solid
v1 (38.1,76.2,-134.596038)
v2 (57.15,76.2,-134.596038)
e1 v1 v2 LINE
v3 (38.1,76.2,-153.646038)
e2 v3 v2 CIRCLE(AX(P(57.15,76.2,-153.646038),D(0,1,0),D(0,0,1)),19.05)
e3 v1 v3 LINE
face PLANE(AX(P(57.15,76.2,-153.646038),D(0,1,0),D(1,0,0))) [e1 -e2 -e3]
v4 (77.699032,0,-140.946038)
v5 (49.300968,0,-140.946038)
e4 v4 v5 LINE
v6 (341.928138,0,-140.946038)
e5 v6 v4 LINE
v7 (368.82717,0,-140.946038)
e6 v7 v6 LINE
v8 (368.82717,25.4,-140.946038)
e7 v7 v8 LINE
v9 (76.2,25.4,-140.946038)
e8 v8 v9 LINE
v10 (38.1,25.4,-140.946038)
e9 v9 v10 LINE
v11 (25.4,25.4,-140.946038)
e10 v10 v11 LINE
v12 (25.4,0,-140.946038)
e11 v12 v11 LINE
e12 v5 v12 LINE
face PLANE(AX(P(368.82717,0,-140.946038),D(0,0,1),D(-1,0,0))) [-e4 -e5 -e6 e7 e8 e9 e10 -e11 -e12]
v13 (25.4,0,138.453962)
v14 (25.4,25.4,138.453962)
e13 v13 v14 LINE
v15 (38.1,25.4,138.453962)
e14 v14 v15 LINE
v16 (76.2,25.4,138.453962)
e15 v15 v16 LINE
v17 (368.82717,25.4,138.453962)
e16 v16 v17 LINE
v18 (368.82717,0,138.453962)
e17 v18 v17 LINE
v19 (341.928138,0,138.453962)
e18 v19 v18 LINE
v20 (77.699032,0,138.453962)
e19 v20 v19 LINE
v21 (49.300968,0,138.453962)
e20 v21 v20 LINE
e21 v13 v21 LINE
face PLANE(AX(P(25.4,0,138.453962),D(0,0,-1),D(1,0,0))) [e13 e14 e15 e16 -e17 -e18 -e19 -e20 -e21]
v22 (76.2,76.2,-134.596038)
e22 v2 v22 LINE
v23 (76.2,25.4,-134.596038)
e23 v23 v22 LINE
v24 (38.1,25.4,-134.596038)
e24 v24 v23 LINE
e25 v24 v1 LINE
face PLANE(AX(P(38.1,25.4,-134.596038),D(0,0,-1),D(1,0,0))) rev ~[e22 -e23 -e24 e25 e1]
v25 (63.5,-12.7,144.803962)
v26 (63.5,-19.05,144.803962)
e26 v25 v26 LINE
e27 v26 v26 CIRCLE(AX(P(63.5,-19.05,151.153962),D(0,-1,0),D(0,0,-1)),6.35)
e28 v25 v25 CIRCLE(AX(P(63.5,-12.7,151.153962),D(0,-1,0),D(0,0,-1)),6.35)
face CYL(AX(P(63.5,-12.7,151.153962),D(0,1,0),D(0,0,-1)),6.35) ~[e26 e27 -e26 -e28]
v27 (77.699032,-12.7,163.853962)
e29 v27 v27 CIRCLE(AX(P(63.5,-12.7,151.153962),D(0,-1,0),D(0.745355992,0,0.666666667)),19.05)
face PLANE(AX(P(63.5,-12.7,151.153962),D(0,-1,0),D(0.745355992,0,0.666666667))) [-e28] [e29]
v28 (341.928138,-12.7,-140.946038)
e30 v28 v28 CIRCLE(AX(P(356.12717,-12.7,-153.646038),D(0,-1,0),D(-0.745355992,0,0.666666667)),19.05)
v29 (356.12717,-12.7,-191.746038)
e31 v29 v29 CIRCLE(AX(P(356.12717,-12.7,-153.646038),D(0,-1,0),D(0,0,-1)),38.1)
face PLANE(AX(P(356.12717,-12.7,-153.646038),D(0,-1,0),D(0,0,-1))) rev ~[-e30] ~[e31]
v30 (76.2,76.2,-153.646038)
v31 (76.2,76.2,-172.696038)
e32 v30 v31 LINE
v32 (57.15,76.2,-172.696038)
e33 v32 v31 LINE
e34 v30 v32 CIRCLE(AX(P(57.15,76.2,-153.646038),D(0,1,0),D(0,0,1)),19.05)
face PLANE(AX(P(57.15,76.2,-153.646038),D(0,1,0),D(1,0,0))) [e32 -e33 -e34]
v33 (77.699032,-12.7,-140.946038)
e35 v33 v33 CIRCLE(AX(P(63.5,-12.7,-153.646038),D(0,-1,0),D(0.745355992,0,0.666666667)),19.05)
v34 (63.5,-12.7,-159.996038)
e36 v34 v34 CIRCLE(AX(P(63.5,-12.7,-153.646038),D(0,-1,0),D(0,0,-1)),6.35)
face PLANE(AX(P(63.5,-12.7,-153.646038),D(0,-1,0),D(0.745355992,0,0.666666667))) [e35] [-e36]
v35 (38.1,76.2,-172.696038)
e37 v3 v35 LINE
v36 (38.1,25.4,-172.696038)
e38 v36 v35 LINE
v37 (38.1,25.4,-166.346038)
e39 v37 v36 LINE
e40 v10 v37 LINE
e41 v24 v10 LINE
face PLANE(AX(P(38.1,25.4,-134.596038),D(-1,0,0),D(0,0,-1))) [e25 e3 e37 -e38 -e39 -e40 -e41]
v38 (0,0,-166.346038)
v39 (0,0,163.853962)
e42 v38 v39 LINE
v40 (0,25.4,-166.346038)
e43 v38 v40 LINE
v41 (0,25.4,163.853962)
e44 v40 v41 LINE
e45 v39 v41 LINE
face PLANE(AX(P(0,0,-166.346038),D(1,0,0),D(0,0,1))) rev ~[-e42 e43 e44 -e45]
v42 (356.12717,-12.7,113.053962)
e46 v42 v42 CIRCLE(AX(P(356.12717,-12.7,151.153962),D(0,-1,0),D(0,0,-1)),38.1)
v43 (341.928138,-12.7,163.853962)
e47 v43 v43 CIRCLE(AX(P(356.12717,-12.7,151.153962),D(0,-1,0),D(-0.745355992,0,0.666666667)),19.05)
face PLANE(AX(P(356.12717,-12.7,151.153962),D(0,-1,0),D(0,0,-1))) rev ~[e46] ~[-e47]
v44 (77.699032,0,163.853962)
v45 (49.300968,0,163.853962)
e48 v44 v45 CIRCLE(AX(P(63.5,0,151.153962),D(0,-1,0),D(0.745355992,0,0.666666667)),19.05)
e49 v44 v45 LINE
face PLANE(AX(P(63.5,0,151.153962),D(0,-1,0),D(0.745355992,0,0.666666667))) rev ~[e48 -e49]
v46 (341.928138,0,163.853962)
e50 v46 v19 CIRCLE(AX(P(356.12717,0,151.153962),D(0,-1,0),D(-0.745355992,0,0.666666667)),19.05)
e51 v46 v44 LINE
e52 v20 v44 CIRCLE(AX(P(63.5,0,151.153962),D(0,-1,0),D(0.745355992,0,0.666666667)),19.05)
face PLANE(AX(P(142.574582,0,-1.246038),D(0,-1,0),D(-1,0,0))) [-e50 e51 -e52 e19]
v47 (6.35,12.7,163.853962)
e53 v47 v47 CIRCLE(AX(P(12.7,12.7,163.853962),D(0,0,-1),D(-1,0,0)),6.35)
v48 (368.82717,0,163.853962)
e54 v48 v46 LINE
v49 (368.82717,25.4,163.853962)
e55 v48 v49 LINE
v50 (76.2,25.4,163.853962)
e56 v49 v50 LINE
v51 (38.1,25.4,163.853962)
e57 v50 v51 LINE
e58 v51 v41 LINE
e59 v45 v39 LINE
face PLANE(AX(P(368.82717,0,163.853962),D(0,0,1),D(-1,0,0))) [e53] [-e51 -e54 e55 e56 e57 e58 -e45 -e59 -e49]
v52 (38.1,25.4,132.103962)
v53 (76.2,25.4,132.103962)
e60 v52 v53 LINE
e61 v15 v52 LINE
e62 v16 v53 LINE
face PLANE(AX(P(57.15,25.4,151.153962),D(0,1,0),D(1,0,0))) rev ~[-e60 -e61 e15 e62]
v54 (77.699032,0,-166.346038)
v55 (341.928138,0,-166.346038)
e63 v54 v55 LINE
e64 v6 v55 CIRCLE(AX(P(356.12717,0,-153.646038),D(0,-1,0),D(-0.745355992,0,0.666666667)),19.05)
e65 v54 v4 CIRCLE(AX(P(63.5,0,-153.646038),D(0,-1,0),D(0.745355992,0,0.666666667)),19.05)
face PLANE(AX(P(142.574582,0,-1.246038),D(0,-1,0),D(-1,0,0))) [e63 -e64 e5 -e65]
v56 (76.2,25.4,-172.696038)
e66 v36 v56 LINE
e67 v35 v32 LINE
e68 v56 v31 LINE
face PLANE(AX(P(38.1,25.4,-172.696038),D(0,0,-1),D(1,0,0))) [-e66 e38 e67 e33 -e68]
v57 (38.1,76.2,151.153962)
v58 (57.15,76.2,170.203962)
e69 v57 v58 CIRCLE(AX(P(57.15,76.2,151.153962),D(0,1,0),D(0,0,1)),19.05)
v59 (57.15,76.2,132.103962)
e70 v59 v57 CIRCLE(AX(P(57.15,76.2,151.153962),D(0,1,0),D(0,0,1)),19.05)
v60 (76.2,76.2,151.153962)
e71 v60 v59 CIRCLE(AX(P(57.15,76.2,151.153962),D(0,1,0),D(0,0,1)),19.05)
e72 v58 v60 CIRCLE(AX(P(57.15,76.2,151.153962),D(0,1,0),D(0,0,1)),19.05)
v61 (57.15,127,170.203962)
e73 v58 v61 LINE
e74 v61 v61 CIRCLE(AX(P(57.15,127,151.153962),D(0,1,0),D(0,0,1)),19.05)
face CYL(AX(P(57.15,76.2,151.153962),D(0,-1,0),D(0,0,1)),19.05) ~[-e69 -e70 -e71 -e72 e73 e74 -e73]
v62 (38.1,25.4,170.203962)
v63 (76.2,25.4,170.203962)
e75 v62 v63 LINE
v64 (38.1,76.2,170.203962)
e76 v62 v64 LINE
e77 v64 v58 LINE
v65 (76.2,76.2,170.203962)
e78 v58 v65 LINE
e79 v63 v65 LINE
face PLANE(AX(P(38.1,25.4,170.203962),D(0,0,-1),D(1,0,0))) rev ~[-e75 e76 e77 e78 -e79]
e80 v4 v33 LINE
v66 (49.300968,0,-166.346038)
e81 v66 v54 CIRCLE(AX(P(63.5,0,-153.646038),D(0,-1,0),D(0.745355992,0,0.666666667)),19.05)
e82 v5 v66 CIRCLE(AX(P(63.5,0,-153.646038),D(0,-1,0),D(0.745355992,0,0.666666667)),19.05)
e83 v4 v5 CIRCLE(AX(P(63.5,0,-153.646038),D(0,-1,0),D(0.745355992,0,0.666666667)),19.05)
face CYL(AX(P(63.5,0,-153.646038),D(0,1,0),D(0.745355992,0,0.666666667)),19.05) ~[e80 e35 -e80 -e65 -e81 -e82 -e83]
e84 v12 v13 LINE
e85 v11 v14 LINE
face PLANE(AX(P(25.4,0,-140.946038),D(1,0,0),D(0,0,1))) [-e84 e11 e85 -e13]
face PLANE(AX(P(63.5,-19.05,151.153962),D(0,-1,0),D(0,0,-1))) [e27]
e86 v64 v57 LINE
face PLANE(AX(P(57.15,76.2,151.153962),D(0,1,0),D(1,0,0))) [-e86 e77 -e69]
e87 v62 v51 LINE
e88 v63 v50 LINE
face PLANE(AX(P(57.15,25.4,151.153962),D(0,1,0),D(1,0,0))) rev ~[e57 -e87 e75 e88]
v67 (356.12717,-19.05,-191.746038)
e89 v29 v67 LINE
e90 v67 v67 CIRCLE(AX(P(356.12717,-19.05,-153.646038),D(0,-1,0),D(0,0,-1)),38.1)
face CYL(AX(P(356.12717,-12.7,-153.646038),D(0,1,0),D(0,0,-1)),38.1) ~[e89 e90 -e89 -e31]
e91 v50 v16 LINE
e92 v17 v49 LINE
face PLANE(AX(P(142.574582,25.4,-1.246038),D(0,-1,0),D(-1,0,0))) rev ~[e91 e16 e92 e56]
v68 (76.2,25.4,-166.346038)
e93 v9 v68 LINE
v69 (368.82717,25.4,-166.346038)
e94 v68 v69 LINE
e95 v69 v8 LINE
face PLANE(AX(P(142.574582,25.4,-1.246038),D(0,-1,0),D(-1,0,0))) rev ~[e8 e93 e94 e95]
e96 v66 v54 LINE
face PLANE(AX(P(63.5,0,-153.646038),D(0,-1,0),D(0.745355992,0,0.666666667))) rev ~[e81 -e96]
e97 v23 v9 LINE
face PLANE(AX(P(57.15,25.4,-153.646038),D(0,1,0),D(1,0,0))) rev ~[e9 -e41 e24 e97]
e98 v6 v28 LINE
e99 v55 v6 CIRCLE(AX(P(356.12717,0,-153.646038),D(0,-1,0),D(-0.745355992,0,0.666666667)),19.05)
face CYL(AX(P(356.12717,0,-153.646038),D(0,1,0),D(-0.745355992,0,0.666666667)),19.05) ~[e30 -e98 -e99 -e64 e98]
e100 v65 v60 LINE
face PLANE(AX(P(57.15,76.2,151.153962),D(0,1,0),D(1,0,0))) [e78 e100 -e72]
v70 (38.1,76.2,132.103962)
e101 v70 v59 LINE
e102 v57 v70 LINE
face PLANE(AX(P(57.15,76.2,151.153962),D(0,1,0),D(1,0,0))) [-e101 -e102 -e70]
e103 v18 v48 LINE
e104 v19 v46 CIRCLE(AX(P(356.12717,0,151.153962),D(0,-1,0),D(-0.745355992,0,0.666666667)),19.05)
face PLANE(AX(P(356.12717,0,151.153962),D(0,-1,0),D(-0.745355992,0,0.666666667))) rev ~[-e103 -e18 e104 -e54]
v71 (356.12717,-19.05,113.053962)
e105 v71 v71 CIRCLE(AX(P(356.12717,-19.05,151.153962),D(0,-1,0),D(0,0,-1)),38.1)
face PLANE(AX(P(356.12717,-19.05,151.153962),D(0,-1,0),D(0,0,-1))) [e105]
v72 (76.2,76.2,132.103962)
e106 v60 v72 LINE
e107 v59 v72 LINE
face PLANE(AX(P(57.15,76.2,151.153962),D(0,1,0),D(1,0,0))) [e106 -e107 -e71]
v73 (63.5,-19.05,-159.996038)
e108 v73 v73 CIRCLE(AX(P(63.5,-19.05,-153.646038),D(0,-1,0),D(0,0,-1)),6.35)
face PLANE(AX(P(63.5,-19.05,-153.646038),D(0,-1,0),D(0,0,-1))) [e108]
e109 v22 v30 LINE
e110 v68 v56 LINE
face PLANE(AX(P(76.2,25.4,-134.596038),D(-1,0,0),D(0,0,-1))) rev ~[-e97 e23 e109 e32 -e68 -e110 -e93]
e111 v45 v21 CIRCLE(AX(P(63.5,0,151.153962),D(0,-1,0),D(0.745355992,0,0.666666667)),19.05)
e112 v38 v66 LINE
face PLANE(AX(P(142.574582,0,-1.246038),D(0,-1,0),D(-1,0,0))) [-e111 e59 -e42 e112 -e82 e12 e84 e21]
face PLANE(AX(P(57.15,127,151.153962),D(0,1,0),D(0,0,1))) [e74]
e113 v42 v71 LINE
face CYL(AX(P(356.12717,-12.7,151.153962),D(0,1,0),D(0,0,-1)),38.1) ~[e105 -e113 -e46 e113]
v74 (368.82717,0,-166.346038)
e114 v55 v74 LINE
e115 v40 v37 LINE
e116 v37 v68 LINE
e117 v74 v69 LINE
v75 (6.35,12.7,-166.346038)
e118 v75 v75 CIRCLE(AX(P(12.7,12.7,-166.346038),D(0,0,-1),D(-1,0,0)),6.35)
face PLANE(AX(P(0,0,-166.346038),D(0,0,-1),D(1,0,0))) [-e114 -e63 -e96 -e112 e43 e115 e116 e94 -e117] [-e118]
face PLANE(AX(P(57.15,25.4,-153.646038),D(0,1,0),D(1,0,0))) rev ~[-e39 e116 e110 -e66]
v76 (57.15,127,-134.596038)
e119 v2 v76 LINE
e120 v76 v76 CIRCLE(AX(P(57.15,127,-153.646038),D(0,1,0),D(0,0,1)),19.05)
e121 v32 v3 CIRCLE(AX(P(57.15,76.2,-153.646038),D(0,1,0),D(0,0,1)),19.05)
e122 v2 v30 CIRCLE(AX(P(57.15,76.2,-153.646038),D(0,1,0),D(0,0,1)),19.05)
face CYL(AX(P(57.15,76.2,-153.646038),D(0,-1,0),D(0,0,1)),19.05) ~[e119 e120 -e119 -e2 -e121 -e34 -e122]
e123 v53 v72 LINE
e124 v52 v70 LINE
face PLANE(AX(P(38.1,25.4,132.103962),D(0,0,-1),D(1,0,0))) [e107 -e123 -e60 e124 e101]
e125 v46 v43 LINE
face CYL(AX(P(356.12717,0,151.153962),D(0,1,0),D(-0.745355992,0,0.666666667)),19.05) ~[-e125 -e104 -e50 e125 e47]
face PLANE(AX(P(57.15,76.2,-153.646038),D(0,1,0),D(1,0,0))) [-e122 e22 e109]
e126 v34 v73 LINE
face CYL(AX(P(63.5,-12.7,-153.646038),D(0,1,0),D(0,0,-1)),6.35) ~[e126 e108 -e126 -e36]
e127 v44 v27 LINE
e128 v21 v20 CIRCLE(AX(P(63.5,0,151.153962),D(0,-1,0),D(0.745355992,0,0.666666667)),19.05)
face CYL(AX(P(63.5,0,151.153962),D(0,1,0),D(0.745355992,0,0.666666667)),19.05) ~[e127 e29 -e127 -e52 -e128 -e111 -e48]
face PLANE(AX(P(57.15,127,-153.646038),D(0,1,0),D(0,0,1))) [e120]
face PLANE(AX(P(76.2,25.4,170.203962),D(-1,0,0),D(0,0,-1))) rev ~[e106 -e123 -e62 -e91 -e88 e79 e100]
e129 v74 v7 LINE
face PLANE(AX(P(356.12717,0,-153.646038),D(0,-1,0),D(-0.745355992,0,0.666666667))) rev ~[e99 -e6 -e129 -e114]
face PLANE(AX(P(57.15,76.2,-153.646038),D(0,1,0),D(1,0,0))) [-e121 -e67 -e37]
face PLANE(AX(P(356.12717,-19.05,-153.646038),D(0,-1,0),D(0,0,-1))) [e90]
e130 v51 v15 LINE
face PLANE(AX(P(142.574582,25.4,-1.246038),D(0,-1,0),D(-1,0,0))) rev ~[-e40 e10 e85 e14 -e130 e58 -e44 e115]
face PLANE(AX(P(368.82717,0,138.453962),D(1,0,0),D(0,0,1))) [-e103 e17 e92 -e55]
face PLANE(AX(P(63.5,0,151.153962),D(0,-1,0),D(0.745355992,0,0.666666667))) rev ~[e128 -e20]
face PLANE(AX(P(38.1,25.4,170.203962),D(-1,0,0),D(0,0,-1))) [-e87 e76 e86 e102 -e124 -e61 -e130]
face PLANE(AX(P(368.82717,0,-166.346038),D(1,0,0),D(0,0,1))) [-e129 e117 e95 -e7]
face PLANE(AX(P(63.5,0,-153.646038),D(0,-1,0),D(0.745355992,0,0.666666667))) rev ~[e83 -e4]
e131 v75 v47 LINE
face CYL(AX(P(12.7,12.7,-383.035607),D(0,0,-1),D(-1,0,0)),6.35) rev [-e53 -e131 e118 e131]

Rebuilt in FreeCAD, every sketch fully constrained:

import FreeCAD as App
import Part
import Sketcher
Q = App.Units.Quantity

doc = App.newDocument("Part")
body = doc.addObject("PartDesign::Body", "Body")

# Sketch on XZ plane
sketch1 = doc.addObject("Sketcher::SketchObject", "Sketch")
body.addObject(sketch1)
sketch1.AttachmentSupport = (doc.XZ_Plane, [""])
sketch1.MapMode = "FlatFace"
sketch1.addGeometry([
    Part.LineSegment(App.Vector(0, -166.346038, 0), App.Vector(0, 163.853962, 0)),  # 0
    Part.LineSegment(App.Vector(0, 163.853962, 0), App.Vector(368.82717, 163.853962, 0)),  # 1
    Part.LineSegment(App.Vector(368.82717, 163.853962, 0), App.Vector(368.82717, 138.453962, 0)),  # 2
    Part.LineSegment(App.Vector(368.82717, 138.453962, 0), App.Vector(25.4, 138.453962, 0)),  # 3
    Part.LineSegment(App.Vector(25.4, 138.453962, 0), App.Vector(25.4, -140.946038, 0)),  # 4
    Part.LineSegment(App.Vector(25.4, -140.946038, 0), App.Vector(368.82717, -140.946038, 0)),  # 5
    Part.LineSegment(App.Vector(368.82717, -140.946038, 0), App.Vector(368.82717, -166.346038, 0)),  # 6
    Part.LineSegment(App.Vector(368.82717, -166.346038, 0), App.Vector(0, -166.346038, 0)),  # 7
], False)
sketch1.addConstraint([
    Sketcher.Constraint("Coincident", 0, 2, 1, 1),
    Sketcher.Constraint("Coincident", 1, 2, 2, 1),
    Sketcher.Constraint("Coincident", 2, 2, 3, 1),
    Sketcher.Constraint("Coincident", 3, 2, 4, 1),
    Sketcher.Constraint("Coincident", 4, 2, 5, 1),
    Sketcher.Constraint("Coincident", 5, 2, 6, 1),
    Sketcher.Constraint("Coincident", 6, 2, 7, 1),
    Sketcher.Constraint("Coincident", 7, 2, 0, 1),
    Sketcher.Constraint("Vertical", 0),
    Sketcher.Constraint("Horizontal", 1),
    Sketcher.Constraint("Vertical", 2),
    Sketcher.Constraint("Horizontal", 3),
    Sketcher.Constraint("Vertical", 4),
    Sketcher.Constraint("Horizontal", 5),
    Sketcher.Constraint("Vertical", 6),
    Sketcher.Constraint("Horizontal", 7),
    Sketcher.Constraint("PointOnObject", 0, 2, -2),
    Sketcher.Constraint("Vertical", 2, 2, 5, 2),
    Sketcher.Constraint("Equal", 2, 6),
    Sketcher.Constraint("DistanceY", 0, 1, 0, 2, Q("13 in")),
    Sketcher.Constraint("DistanceY", 2, 2, 2, 1, Q("1 in")),
    Sketcher.Constraint("DistanceX", -1, 1, 3, 2, Q("1 in")),
    Sketcher.Constraint("DistanceX", 1, 1, 1, 2, 368.82717),
    Sketcher.Constraint("DistanceY", -1, 1, 0, 2, 163.853962),
])
pad1 = doc.addObject("PartDesign::Pad", "Pad")
body.addObject(pad1)
pad1.Profile = sketch1
pad1.Length = Q("1 in")
pad1.Reversed = True

# Sketch on XZ plane
sketch2 = doc.addObject("Sketcher::SketchObject", "Sketch001")
body.addObject(sketch2)
sketch2.AttachmentSupport = (doc.XZ_Plane, [""])
sketch2.MapMode = "FlatFace"
sketch2.AttachmentOffset = App.Placement(App.Vector(0, 0, -1 * 25.4), App.Rotation())
sketch2.addGeometry([
    Part.LineSegment(App.Vector(38.1, 132.103962, 0), App.Vector(38.1, 170.203962, 0)),
    Part.LineSegment(App.Vector(38.1, 170.203962, 0), App.Vector(76.2, 170.203962, 0)),
    Part.LineSegment(App.Vector(76.2, 170.203962, 0), App.Vector(76.2, 132.103962, 0)),
    Part.LineSegment(App.Vector(76.2, 132.103962, 0), App.Vector(38.1, 132.103962, 0)),
], False)
sketch2.addConstraint([
    Sketcher.Constraint("Coincident", 0, 2, 1, 1),
    Sketcher.Constraint("Coincident", 1, 2, 2, 1),
    Sketcher.Constraint("Coincident", 2, 2, 3, 1),
    Sketcher.Constraint("Coincident", 3, 2, 0, 1),
    Sketcher.Constraint("Vertical", 0),
    Sketcher.Constraint("Horizontal", 1),
    Sketcher.Constraint("Vertical", 2),
    Sketcher.Constraint("Horizontal", 3),
    Sketcher.Constraint("Equal", 3, 0),
    Sketcher.Constraint("DistanceX", 1, 1, 1, 2, Q("1.5 in")),
    Sketcher.Constraint("DistanceX", -1, 1, 1, 2, Q("3 in")),
    Sketcher.Constraint("DistanceY", -1, 1, 0, 2, 170.203962),
])
pad2 = doc.addObject("PartDesign::Pad", "Pad001")
body.addObject(pad2)
pad2.Profile = sketch2
pad2.Length = Q("2 in")
pad2.Reversed = True

# Sketch on XZ plane
sketch3 = doc.addObject("Sketcher::SketchObject", "Sketch002")
body.addObject(sketch3)
sketch3.AttachmentSupport = (doc.XZ_Plane, [""])
sketch3.MapMode = "FlatFace"
sketch3.AttachmentOffset = App.Placement(App.Vector(0, 0, -3 * 25.4), App.Rotation())
sketch3.addGeometry(Part.Circle(App.Vector(57.15, 151.153962, 0), App.Vector(0, 0, 1), 19.05), False)
sketch3.addConstraint([
    Sketcher.Constraint("Diameter", 0, Q("1.5 in")),
    Sketcher.Constraint("DistanceX", -1, 1, 0, 3, Q("2.25 in")),
    Sketcher.Constraint("DistanceY", -1, 1, 0, 3, 151.153962),
])
pad3 = doc.addObject("PartDesign::Pad", "Pad002")
body.addObject(pad3)
pad3.Profile = sketch3
pad3.Length = Q("2 in")
pad3.Reversed = True
doc.recompute()

linearpattern = doc.addObject("PartDesign::LinearPattern", "LinearPattern")
body.addObject(linearpattern)
linearpattern.Originals = [pad2, pad3]
linearpattern.Direction = (doc.Z_Axis, [""])
linearpattern.Mode = "offset"
linearpattern.Offset = Q("12 in")
linearpattern.Occurrences = 2
linearpattern.Reversed = True
body.Tip = linearpattern

# Sketch on XZ plane
sketch4 = doc.addObject("Sketcher::SketchObject", "Sketch003")
body.addObject(sketch4)
sketch4.AttachmentSupport = (doc.XZ_Plane, [""])
sketch4.MapMode = "FlatFace"
sketch4.addGeometry(Part.Circle(App.Vector(63.5, 151.153962, 0), App.Vector(0, 0, 1), 19.05), False)
sketch4.addConstraint([
    Sketcher.Constraint("Diameter", 0, Q("1.5 in")),
    Sketcher.Constraint("DistanceX", -1, 1, 0, 3, Q("2.5 in")),
    Sketcher.Constraint("DistanceY", -1, 1, 0, 3, 151.153962),
])
pad4 = doc.addObject("PartDesign::Pad", "Pad003")
body.addObject(pad4)
pad4.Profile = sketch4
pad4.Length = Q("0.5 in")

# Sketch on XZ plane
sketch5 = doc.addObject("Sketcher::SketchObject", "Sketch004")
body.addObject(sketch5)
sketch5.AttachmentSupport = (doc.XZ_Plane, [""])
sketch5.MapMode = "FlatFace"
sketch5.AttachmentOffset = App.Placement(App.Vector(0, 0, 0.5 * 25.4), App.Rotation())
sketch5.addGeometry(Part.Circle(App.Vector(63.5, 151.153962, 0), App.Vector(0, 0, 1), 6.35), False)
sketch5.addConstraint([
    Sketcher.Constraint("Diameter", 0, Q("0.5 in")),
    Sketcher.Constraint("DistanceX", -1, 1, 0, 3, Q("2.5 in")),
    Sketcher.Constraint("DistanceY", -1, 1, 0, 3, 151.153962),
])
pad5 = doc.addObject("PartDesign::Pad", "Pad004")
body.addObject(pad5)
pad5.Profile = sketch5
pad5.Length = Q("0.25 in")
doc.recompute()

linearpattern2 = doc.addObject("PartDesign::LinearPattern", "LinearPattern001")
body.addObject(linearpattern2)
linearpattern2.Originals = [pad4, pad5]
linearpattern2.Direction = (doc.Z_Axis, [""])
linearpattern2.Mode = "offset"
linearpattern2.Offset = Q("12 in")
linearpattern2.Occurrences = 2
linearpattern2.Reversed = True
body.Tip = linearpattern2

# Sketch on XZ plane
sketch6 = doc.addObject("Sketcher::SketchObject", "Sketch005")
body.addObject(sketch6)
sketch6.AttachmentSupport = (doc.XZ_Plane, [""])
sketch6.MapMode = "FlatFace"
sketch6.addGeometry(Part.Circle(App.Vector(356.12717, 151.153962, 0), App.Vector(0, 0, 1), 19.05), False)
sketch6.addConstraint([
    Sketcher.Constraint("Diameter", 0, Q("1.5 in")),
    Sketcher.Constraint("DistanceX", -1, 1, 0, 3, 356.12717),
    Sketcher.Constraint("DistanceY", -1, 1, 0, 3, 151.153962),
])
pad6 = doc.addObject("PartDesign::Pad", "Pad005")
body.addObject(pad6)
pad6.Profile = sketch6
pad6.Length = Q("0.5 in")

# Sketch on XZ plane
sketch7 = doc.addObject("Sketcher::SketchObject", "Sketch006")
body.addObject(sketch7)
sketch7.AttachmentSupport = (doc.XZ_Plane, [""])
sketch7.MapMode = "FlatFace"
sketch7.AttachmentOffset = App.Placement(App.Vector(0, 0, 0.5 * 25.4), App.Rotation())
sketch7.addGeometry(Part.Circle(App.Vector(356.12717, 151.153962, 0), App.Vector(0, 0, 1), 38.1), False)
sketch7.addConstraint([
    Sketcher.Constraint("Diameter", 0, Q("3 in")),
    Sketcher.Constraint("DistanceX", -1, 1, 0, 3, 356.12717),
    Sketcher.Constraint("DistanceY", -1, 1, 0, 3, 151.153962),
])
pad7 = doc.addObject("PartDesign::Pad", "Pad006")
body.addObject(pad7)
pad7.Profile = sketch7
pad7.Length = Q("0.25 in")
doc.recompute()

linearpattern3 = doc.addObject("PartDesign::LinearPattern", "LinearPattern002")
body.addObject(linearpattern3)
linearpattern3.Originals = [pad6, pad7]
linearpattern3.Direction = (doc.Z_Axis, [""])
linearpattern3.Mode = "offset"
linearpattern3.Offset = Q("12 in")
linearpattern3.Occurrences = 2
linearpattern3.Reversed = True
body.Tip = linearpattern3

# Sketch on XY plane
sketch8 = doc.addObject("Sketcher::SketchObject", "Sketch007")
body.addObject(sketch8)
sketch8.AttachmentSupport = (doc.XY_Plane, [""])
sketch8.MapMode = "FlatFace"
sketch8.AttachmentOffset = App.Placement(App.Vector(0, 0, 163.853962), App.Rotation())
sketch8.addGeometry(Part.Circle(App.Vector(12.7, 12.7, 0), App.Vector(0, 0, 1), 6.35), False)
sketch8.addConstraint([
    Sketcher.Constraint("Diameter", 0, Q("0.5 in")),
    Sketcher.Constraint("DistanceX", -1, 1, 0, 3, Q("0.5 in")),
    Sketcher.Constraint("DistanceY", -1, 1, 0, 3, Q("0.5 in")),
])
pocket1 = doc.addObject("PartDesign::Pocket", "Pocket")
body.addObject(pocket1)
pocket1.Profile = sketch8
pocket1.Type = "ThroughAll"
pocket1.Midplane = True

doc.recompute()
